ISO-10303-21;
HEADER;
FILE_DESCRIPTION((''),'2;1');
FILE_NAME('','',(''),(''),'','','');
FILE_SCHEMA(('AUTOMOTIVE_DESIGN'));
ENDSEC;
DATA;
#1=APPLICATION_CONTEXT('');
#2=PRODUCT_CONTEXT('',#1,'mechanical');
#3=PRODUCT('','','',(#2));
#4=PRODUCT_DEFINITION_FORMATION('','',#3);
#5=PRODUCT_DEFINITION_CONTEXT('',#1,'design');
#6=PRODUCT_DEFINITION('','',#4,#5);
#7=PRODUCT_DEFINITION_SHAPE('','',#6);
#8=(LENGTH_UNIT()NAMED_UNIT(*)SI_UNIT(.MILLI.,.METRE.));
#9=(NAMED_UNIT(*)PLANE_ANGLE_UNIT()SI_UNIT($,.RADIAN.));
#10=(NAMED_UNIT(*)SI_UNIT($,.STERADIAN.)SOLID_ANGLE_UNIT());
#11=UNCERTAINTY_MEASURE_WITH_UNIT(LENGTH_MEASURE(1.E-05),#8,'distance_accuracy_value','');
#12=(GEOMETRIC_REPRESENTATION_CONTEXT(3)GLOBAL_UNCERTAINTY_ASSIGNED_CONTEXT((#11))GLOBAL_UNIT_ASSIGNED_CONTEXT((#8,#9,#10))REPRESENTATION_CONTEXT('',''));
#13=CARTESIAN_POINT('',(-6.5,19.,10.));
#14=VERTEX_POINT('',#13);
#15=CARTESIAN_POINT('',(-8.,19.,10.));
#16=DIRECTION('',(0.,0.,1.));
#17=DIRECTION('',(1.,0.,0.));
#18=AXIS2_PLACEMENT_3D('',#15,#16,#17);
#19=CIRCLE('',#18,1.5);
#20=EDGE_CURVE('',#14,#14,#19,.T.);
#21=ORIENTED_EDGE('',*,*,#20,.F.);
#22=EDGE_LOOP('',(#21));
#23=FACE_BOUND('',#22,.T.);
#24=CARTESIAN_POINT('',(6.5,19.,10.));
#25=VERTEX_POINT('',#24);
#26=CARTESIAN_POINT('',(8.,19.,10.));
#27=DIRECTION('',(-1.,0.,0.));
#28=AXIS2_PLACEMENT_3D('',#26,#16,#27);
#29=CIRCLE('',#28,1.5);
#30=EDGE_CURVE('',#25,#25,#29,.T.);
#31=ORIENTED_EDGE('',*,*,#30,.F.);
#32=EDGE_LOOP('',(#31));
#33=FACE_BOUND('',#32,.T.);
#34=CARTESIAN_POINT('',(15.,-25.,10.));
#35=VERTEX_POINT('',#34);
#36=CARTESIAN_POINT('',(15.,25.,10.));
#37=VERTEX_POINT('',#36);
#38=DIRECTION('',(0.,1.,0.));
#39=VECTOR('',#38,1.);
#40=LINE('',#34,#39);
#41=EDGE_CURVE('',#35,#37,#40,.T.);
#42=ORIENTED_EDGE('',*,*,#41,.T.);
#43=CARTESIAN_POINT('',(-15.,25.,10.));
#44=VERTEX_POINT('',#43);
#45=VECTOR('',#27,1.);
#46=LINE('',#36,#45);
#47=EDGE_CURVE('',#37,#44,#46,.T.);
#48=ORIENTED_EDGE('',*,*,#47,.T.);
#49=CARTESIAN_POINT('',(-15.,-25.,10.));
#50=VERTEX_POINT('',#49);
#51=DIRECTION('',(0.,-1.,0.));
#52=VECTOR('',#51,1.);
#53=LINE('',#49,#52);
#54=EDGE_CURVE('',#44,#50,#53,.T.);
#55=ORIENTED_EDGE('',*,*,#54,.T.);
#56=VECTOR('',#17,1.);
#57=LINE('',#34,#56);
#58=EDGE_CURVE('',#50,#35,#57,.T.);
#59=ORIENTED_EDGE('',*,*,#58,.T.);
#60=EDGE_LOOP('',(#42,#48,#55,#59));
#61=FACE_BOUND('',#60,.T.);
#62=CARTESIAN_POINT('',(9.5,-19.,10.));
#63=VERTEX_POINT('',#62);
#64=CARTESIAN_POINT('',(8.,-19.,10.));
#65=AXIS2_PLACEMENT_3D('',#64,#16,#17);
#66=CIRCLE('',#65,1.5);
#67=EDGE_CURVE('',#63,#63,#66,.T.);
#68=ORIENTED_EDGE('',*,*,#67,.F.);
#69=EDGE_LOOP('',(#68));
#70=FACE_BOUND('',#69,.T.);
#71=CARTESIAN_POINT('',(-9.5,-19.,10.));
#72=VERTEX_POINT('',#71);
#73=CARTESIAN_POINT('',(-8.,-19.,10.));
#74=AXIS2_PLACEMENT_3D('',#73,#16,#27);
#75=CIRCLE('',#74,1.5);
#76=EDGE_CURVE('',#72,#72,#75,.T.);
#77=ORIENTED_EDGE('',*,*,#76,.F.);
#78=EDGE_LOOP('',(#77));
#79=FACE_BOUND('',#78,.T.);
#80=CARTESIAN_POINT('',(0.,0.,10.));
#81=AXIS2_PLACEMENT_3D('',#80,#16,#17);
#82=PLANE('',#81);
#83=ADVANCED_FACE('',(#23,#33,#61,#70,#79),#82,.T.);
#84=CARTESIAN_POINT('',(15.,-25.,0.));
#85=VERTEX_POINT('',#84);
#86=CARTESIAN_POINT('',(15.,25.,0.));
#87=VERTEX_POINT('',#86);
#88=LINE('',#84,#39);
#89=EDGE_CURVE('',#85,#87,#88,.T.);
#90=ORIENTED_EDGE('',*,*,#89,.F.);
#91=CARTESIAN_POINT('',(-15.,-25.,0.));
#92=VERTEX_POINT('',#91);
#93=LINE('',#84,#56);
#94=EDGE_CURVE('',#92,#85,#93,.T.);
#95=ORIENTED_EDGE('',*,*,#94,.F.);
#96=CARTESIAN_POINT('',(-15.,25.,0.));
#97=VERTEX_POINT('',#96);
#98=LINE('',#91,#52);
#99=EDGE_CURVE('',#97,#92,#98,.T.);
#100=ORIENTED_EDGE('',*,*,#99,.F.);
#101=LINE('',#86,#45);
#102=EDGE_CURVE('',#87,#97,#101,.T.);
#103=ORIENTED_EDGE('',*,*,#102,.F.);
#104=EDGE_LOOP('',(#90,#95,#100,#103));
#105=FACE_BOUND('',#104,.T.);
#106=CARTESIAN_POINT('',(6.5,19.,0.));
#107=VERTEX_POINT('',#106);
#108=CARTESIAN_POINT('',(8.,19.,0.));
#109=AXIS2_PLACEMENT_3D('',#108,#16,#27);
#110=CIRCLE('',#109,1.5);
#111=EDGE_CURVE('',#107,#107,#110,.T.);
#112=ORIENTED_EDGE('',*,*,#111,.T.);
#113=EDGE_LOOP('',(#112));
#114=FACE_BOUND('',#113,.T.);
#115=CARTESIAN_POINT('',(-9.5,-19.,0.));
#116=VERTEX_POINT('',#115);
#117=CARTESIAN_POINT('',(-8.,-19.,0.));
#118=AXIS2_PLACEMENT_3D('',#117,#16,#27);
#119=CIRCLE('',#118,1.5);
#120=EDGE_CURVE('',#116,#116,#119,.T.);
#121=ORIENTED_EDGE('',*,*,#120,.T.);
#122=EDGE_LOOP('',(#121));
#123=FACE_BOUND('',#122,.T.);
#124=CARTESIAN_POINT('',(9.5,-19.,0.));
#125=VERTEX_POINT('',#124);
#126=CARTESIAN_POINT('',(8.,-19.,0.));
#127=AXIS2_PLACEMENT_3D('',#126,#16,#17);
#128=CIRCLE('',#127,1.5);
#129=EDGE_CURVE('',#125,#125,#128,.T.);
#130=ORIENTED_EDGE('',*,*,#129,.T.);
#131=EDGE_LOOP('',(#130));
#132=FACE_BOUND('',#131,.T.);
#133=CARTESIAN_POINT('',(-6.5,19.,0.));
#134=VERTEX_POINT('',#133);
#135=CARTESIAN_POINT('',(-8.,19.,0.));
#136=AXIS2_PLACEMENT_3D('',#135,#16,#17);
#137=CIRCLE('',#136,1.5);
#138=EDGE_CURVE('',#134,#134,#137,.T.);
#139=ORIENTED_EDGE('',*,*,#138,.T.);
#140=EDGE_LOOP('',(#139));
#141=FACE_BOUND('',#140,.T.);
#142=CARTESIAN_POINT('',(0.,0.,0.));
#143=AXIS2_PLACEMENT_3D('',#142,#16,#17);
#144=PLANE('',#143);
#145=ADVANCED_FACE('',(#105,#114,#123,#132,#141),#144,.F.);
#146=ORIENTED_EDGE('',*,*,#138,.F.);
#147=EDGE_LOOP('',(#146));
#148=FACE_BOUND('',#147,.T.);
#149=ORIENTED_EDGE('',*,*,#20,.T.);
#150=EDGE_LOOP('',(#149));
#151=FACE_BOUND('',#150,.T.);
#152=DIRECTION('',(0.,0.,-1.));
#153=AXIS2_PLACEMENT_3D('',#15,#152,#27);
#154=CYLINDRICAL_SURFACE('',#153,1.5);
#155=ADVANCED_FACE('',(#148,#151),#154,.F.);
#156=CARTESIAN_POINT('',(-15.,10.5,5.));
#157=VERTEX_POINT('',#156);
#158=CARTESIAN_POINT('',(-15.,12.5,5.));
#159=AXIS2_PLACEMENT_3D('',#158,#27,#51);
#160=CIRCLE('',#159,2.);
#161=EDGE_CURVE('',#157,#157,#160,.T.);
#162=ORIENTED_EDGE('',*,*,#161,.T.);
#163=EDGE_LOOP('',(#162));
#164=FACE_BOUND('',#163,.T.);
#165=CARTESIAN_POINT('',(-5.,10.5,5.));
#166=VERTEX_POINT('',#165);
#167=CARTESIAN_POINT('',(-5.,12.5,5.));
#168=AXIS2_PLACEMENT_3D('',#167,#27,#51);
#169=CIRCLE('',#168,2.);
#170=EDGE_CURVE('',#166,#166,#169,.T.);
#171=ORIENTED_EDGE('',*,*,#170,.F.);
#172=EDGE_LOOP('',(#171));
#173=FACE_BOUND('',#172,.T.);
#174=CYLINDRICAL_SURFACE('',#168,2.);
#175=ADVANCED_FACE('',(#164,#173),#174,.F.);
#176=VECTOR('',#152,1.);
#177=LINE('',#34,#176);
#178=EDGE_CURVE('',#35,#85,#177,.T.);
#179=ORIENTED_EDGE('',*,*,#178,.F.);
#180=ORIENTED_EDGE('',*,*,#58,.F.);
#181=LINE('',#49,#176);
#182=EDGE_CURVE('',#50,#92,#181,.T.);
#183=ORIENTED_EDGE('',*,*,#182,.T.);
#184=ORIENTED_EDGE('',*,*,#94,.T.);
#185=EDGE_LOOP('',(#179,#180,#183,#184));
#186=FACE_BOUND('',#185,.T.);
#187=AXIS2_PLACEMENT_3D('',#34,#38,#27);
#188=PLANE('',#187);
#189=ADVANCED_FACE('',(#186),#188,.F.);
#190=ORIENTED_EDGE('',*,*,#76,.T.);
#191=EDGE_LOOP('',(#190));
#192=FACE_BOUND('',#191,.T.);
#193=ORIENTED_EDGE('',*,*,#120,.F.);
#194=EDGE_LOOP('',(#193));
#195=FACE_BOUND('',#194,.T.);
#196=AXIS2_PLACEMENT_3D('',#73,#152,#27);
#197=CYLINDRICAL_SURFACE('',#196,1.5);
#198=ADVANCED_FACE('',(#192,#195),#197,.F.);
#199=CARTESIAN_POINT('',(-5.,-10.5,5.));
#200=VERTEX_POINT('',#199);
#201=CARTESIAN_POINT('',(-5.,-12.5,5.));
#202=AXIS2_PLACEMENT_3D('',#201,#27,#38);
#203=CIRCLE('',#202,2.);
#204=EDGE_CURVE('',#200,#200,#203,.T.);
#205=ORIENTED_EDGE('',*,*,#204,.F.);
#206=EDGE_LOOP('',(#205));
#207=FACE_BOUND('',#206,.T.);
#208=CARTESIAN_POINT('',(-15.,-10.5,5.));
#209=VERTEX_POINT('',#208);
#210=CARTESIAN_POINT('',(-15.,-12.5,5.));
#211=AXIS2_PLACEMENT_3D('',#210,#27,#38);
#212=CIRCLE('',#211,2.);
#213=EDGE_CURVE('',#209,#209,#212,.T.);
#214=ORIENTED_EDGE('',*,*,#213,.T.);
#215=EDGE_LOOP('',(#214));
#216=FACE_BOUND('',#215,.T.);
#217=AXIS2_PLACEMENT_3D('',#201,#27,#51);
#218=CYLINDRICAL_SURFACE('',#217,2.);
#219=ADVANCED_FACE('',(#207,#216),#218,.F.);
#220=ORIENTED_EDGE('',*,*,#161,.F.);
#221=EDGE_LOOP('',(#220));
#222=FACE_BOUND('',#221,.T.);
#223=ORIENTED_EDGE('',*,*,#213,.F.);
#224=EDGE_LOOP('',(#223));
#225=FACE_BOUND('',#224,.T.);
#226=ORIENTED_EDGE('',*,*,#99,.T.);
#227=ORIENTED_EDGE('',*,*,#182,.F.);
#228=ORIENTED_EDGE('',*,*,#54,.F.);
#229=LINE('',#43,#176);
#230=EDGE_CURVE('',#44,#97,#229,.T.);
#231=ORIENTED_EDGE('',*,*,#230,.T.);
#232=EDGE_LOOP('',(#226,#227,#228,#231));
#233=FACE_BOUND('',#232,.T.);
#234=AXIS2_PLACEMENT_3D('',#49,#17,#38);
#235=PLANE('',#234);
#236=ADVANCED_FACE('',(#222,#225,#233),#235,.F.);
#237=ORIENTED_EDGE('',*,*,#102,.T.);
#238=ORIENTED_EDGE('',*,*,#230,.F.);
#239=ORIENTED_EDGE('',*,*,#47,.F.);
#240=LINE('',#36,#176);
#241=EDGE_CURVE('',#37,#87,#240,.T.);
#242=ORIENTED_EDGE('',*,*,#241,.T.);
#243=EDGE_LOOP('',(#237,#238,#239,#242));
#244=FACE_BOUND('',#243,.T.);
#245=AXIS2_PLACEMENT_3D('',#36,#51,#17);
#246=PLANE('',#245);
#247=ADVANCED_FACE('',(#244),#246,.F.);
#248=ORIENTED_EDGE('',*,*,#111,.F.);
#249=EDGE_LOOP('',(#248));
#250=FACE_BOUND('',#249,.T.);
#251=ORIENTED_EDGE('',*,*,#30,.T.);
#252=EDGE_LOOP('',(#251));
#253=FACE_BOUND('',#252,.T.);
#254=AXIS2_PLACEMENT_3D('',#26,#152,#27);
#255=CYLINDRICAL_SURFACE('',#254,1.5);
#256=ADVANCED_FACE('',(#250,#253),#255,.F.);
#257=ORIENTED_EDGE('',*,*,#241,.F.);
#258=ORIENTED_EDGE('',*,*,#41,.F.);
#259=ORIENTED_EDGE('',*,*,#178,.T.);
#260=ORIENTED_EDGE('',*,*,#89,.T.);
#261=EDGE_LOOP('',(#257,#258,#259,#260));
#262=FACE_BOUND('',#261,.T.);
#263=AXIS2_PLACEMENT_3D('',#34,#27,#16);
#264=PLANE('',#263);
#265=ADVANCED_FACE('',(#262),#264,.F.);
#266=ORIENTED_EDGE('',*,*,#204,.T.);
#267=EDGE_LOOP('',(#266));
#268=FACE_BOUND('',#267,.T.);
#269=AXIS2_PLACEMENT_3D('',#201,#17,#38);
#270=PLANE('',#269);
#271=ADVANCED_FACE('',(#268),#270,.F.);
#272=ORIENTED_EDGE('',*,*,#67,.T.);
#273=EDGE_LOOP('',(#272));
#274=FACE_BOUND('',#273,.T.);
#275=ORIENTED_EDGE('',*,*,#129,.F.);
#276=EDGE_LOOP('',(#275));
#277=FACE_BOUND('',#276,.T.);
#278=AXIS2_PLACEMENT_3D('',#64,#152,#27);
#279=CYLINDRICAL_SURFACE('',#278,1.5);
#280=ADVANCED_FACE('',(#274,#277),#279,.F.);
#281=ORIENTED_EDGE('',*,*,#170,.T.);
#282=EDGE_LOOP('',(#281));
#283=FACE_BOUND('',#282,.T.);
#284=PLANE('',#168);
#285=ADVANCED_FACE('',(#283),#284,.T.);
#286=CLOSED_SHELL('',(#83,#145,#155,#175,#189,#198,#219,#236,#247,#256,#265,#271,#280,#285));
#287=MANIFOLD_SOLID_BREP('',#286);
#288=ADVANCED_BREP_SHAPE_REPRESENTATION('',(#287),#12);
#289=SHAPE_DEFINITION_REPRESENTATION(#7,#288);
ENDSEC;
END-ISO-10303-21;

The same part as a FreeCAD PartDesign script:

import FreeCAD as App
import Part
import Sketcher

doc = App.newDocument("Part")
body = doc.addObject("PartDesign::Body", "Body")

sketch1 = body.newObject("Sketcher::SketchObject", "Sketch")
sketch1.AttachmentSupport = (doc.getObject("XY_Plane"), [""])
sketch1.MapMode = "FlatFace"
sketch1.addGeometry(Part.LineSegment(App.Vector(-15, 25, 0), App.Vector(-15, -25, 0)), False)
sketch1.addGeometry(Part.LineSegment(App.Vector(-15, -25, 0), App.Vector(15, -25, 0)), False)
sketch1.addGeometry(Part.LineSegment(App.Vector(15, -25, 0), App.Vector(15, 25, 0)), False)
sketch1.addGeometry(Part.LineSegment(App.Vector(15, 25, 0), App.Vector(-15, 25, 0)), False)
sketch1.addGeometry(Part.Circle(App.Vector(-8, -19, 0), App.Vector(0, 0, 1), 1.5), False)
sketch1.addGeometry(Part.Circle(App.Vector(8, -19, 0), App.Vector(0, 0, 1), 1.5), False)
sketch1.addGeometry(Part.Circle(App.Vector(-8, 19, 0), App.Vector(0, 0, 1), 1.5), False)
sketch1.addGeometry(Part.Circle(App.Vector(8, 19, 0), App.Vector(0, 0, 1), 1.5), False)
sketch1.addConstraint(Sketcher.Constraint("Coincident", 0, 2, 1, 1))
sketch1.addConstraint(Sketcher.Constraint("Coincident", 1, 2, 2, 1))
sketch1.addConstraint(Sketcher.Constraint("Coincident", 2, 2, 3, 1))
sketch1.addConstraint(Sketcher.Constraint("Coincident", 3, 2, 0, 1))
sketch1.addConstraint(Sketcher.Constraint("Vertical", 0))
sketch1.addConstraint(Sketcher.Constraint("Horizontal", 1))
sketch1.addConstraint(Sketcher.Constraint("Vertical", 2))
sketch1.addConstraint(Sketcher.Constraint("Horizontal", 3))
sketch1.addConstraint(Sketcher.Constraint("Equal", 4, 5))
sketch1.addConstraint(Sketcher.Constraint("Equal", 5, 6))
sketch1.addConstraint(Sketcher.Constraint("Equal", 6, 7))
sketch1.addConstraint(Sketcher.Constraint("Symmetric", 5, 3, 6, 3, -1, 1))
sketch1.addConstraint(Sketcher.Constraint("Symmetric", 4, 3, 7, 3, -1, 1))
sketch1.addConstraint(Sketcher.Constraint("Symmetric", 0, 2, 2, 2, -1, 1))
sketch1.addConstraint(Sketcher.Constraint("Symmetric", 4, 3, 5, 3, -2))
sketch1.addConstraint(Sketcher.Constraint("Diameter", 4, 3.0))
sketch1.addConstraint(Sketcher.Constraint("DistanceX", 1, 1, 1, 2, 30.0))
sketch1.addConstraint(Sketcher.Constraint("DistanceY", 0, 2, 0, 1, 50.0))
sketch1.addConstraint(Sketcher.Constraint("DistanceX", 4, 3, -1, 1, 8.0))
sketch1.addConstraint(Sketcher.Constraint("DistanceY", 4, 3, -1, 1, 19.0))
pad1 = body.newObject("PartDesign::Pad", "Pad")
pad1.Profile = sketch1
pad1.Length = 10

sketch2 = body.newObject("Sketcher::SketchObject", "Sketch001")
sketch2.AttachmentSupport = (doc.getObject("YZ_Plane"), [""])
sketch2.MapMode = "FlatFace"
sketch2.AttachmentOffset = App.Placement(App.Vector(0, 0, -15), App.Rotation())
sketch2.addGeometry(Part.Circle(App.Vector(12.5, 5, 0), App.Vector(0, 0, 1), 2), False)
sketch2.addGeometry(Part.Circle(App.Vector(-12.5, 5, 0), App.Vector(0, 0, 1), 2), False)
sketch2.addConstraint(Sketcher.Constraint("Equal", 0, 1))
sketch2.addConstraint(Sketcher.Constraint("Symmetric", 0, 3, 1, 3, -2))
sketch2.addConstraint(Sketcher.Constraint("Diameter", 0, 4.0))
sketch2.addConstraint(Sketcher.Constraint("DistanceY", -1, 1, 0, 3, 5.0))
sketch2.addConstraint(Sketcher.Constraint("DistanceX", 1, 3, 0, 3, 25.0))
pocket1 = body.newObject("PartDesign::Pocket", "Pocket")
pocket1.Profile = sketch2
pocket1.Length = 10
pocket1.Reversed = True

doc.recompute()
